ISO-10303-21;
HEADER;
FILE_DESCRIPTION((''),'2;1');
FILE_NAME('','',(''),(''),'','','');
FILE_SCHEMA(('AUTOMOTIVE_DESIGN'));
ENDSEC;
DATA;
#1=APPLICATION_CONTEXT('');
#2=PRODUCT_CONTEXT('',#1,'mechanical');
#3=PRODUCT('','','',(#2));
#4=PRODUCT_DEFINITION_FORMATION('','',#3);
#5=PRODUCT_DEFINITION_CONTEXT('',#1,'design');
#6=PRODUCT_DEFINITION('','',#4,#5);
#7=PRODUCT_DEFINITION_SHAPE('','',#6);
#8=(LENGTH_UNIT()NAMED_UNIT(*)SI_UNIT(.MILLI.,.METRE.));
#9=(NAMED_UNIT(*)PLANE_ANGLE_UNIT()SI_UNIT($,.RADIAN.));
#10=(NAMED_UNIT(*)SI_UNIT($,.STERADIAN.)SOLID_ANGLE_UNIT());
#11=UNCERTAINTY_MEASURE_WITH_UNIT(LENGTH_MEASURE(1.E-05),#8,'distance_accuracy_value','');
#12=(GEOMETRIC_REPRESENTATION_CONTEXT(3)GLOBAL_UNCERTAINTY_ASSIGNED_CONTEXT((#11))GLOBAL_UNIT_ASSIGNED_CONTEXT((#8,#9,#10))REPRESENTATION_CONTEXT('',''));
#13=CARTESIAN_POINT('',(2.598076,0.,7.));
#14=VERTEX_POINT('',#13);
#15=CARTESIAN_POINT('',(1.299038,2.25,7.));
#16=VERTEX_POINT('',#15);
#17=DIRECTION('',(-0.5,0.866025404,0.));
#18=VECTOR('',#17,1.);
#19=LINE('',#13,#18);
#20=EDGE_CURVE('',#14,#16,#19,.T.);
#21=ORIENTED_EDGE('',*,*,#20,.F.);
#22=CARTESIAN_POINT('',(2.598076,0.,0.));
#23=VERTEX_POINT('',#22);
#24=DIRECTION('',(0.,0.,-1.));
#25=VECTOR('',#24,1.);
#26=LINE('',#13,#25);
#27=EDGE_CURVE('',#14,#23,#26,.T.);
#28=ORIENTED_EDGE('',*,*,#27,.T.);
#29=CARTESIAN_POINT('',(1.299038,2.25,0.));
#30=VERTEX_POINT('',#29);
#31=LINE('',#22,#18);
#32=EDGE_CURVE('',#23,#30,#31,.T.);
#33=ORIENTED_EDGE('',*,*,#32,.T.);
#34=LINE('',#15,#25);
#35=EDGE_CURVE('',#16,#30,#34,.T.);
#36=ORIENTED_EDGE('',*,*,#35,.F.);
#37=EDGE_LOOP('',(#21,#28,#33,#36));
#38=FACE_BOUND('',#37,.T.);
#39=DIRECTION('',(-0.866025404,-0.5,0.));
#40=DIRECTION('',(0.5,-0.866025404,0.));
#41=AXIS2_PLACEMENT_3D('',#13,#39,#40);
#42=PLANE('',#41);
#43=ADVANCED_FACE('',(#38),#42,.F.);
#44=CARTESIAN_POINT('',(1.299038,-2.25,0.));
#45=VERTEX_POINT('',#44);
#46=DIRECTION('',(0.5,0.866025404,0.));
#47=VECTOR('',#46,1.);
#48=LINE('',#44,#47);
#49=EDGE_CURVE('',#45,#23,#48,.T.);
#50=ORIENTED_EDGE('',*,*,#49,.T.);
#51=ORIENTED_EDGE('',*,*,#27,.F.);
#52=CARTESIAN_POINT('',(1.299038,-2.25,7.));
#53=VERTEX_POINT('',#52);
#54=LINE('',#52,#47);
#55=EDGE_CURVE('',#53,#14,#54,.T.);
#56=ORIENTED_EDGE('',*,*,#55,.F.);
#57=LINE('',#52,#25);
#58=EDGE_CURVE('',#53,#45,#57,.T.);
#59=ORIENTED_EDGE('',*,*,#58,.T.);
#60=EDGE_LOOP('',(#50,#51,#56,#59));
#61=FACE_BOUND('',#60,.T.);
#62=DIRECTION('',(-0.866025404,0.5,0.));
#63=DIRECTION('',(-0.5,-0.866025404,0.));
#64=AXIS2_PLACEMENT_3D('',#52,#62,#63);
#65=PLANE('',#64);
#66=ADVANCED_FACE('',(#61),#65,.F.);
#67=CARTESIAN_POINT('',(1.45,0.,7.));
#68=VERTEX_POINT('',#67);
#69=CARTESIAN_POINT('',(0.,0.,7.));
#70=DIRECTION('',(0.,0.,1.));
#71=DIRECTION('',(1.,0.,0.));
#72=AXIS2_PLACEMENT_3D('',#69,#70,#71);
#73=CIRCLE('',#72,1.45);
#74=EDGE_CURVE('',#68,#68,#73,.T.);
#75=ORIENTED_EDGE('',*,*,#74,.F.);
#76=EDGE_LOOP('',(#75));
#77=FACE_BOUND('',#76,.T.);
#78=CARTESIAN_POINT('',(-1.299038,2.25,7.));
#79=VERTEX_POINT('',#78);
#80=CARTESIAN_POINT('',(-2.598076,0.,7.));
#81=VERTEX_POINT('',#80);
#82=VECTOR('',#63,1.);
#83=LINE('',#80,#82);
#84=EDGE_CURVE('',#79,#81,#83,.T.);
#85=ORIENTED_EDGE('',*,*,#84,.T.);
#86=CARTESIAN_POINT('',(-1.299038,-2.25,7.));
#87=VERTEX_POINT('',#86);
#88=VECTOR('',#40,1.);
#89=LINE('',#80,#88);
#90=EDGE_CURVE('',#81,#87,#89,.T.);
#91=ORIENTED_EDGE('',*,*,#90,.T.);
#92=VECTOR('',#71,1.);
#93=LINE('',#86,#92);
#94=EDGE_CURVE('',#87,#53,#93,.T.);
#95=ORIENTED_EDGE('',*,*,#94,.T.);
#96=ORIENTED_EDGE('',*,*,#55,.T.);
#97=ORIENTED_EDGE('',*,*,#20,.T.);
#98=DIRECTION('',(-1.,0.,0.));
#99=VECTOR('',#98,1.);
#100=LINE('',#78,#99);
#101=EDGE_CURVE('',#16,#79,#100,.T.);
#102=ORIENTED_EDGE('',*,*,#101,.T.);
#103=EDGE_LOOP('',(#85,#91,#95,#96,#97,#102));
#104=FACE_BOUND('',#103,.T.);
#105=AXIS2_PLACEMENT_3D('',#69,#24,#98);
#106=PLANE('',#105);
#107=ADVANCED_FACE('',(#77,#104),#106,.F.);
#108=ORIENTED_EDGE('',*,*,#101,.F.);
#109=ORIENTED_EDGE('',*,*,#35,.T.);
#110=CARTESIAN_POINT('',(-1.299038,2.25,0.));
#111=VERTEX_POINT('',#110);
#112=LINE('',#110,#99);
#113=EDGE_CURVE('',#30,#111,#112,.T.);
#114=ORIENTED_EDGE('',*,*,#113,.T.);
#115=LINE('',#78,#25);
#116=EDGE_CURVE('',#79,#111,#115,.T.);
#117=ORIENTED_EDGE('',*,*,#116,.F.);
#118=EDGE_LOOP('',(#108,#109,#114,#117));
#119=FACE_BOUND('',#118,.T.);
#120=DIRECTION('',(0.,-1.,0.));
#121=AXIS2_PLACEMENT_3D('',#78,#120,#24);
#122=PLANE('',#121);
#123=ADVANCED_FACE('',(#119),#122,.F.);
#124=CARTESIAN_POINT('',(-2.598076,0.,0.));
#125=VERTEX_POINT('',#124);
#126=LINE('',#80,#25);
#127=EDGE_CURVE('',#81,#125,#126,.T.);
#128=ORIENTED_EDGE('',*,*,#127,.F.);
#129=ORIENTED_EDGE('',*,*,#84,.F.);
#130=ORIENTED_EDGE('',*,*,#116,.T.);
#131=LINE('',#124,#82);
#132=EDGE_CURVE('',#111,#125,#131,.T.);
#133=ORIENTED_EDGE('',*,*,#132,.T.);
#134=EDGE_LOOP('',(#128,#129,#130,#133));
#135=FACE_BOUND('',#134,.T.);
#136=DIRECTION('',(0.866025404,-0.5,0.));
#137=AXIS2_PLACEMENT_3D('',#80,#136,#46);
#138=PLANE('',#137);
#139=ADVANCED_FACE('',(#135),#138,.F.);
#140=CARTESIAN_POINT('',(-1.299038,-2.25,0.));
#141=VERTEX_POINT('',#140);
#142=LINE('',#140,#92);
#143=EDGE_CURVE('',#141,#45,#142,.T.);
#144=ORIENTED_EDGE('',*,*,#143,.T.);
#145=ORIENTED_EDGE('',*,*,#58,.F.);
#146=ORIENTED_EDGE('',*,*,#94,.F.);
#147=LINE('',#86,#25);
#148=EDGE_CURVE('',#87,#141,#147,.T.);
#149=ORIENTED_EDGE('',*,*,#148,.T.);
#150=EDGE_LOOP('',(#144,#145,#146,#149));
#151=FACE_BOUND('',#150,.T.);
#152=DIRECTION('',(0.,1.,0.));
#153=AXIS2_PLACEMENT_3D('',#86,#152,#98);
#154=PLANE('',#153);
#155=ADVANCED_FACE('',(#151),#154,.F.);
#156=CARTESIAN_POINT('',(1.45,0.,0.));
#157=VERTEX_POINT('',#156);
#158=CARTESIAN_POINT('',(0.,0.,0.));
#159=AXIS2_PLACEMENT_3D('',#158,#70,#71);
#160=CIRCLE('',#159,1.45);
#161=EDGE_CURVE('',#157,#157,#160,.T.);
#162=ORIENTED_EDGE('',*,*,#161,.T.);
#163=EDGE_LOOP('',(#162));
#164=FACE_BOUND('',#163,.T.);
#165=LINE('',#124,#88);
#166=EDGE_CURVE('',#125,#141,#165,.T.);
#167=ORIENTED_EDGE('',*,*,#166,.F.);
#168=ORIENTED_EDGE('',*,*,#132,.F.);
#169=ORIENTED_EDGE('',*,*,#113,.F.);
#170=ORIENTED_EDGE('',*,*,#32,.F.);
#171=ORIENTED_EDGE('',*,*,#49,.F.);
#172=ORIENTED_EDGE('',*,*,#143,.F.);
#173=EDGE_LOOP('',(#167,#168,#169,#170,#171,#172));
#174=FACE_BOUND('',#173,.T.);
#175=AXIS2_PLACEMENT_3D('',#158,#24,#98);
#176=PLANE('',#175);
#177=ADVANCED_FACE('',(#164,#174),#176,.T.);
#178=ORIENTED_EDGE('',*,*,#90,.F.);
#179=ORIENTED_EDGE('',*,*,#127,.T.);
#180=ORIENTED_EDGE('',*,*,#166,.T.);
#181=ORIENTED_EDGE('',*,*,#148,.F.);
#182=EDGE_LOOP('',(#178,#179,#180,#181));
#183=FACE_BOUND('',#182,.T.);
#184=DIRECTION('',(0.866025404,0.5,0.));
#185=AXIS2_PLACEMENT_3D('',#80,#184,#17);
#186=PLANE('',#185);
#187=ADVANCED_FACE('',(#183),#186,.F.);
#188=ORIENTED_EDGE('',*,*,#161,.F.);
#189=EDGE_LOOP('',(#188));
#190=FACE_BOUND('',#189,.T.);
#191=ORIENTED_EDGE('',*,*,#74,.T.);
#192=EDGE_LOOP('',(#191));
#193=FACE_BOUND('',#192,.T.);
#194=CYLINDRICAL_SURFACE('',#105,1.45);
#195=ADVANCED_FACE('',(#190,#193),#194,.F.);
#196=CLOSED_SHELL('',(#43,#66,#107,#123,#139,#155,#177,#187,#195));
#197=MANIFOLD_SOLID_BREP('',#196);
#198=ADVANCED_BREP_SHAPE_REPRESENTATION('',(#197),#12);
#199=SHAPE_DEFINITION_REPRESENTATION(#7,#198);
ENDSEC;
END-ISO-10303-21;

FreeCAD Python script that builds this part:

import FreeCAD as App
import Part
import Sketcher

V = App.Vector
Q = App.Units.Quantity

doc = App.newDocument("Part")
params = doc.addObject("Spreadsheet::Sheet", "Params")
for row, (alias, value) in enumerate([
    ("sketch1_diameter", "2.9 mm"),
    ("pad1_length", "7 mm"),
], start=1):
    params.set(f"A{row}", alias)
    params.set(f"B{row}", "=" + value)
    params.setAlias(f"B{row}", alias)

body = doc.addObject("PartDesign::Body", "Body")

sketch1 = body.newObject("Sketcher::SketchObject", "Sketch")
sketch1.AttachmentSupport = (doc.getObject("XY_Plane"), [""])
sketch1.MapMode = "FlatFace"
sketch1.addGeometry([
    Part.LineSegment(V(-1.299038, -2.25, 0), V(1.299038, -2.25, 0)),
    Part.LineSegment(V(1.299038, -2.25, 0), V(2.598076, 0, 0)),
    Part.LineSegment(V(2.598076, 0, 0), V(1.299038, 2.25, 0)),
    Part.LineSegment(V(1.299038, 2.25, 0), V(-1.299038, 2.25, 0)),
    Part.LineSegment(V(-1.299038, 2.25, 0), V(-2.598076, 0, 0)),
    Part.LineSegment(V(-2.598076, 0, 0), V(-1.299038, -2.25, 0)),
    Part.Circle(V(0, 0, 0), V(0, 0, 1), 1.45),
], False)
sketch1.addConstraint([
    Sketcher.Constraint("Coincident", 0, 2, 1, 1),
    Sketcher.Constraint("Coincident", 1, 2, 2, 1),
    Sketcher.Constraint("Coincident", 2, 2, 3, 1),
    Sketcher.Constraint("Coincident", 3, 2, 4, 1),
    Sketcher.Constraint("Coincident", 4, 2, 5, 1),
    Sketcher.Constraint("Coincident", 5, 2, 0, 1),
    Sketcher.Constraint("Horizontal", 0),
    Sketcher.Constraint("Horizontal", 3),
    Sketcher.Constraint("Coincident", 6, 3, -1, 1),
    Sketcher.Constraint("Symmetric", 0, 2, 3, 2, -1, 1),
    Sketcher.Constraint("Symmetric", 1, 2, 4, 2, -1, 1),
    Sketcher.Constraint("PointOnObject", 1, 2, -1),
    Sketcher.Constraint("Parallel", 2, 5),
    Sketcher.Constraint("Vertical", 0, 2, 2, 2),
    Sketcher.Constraint("Diameter", 6, 2.9),
    Sketcher.Constraint("Angle", 1, Q("60 deg")),
    Sketcher.Constraint("DistanceY", 0, 2, 2, 2, 4.5),
    Sketcher.Constraint("DistanceX", 0, 1, 0, 2, 2.598076),
])
sketch1.setExpression("Constraints[14]", "Params.sketch1_diameter")
pad1 = body.newObject("PartDesign::Pad", "Pad")
pad1.Profile = sketch1
pad1.setExpression("Length", "Params.pad1_length")

doc.recompute()
